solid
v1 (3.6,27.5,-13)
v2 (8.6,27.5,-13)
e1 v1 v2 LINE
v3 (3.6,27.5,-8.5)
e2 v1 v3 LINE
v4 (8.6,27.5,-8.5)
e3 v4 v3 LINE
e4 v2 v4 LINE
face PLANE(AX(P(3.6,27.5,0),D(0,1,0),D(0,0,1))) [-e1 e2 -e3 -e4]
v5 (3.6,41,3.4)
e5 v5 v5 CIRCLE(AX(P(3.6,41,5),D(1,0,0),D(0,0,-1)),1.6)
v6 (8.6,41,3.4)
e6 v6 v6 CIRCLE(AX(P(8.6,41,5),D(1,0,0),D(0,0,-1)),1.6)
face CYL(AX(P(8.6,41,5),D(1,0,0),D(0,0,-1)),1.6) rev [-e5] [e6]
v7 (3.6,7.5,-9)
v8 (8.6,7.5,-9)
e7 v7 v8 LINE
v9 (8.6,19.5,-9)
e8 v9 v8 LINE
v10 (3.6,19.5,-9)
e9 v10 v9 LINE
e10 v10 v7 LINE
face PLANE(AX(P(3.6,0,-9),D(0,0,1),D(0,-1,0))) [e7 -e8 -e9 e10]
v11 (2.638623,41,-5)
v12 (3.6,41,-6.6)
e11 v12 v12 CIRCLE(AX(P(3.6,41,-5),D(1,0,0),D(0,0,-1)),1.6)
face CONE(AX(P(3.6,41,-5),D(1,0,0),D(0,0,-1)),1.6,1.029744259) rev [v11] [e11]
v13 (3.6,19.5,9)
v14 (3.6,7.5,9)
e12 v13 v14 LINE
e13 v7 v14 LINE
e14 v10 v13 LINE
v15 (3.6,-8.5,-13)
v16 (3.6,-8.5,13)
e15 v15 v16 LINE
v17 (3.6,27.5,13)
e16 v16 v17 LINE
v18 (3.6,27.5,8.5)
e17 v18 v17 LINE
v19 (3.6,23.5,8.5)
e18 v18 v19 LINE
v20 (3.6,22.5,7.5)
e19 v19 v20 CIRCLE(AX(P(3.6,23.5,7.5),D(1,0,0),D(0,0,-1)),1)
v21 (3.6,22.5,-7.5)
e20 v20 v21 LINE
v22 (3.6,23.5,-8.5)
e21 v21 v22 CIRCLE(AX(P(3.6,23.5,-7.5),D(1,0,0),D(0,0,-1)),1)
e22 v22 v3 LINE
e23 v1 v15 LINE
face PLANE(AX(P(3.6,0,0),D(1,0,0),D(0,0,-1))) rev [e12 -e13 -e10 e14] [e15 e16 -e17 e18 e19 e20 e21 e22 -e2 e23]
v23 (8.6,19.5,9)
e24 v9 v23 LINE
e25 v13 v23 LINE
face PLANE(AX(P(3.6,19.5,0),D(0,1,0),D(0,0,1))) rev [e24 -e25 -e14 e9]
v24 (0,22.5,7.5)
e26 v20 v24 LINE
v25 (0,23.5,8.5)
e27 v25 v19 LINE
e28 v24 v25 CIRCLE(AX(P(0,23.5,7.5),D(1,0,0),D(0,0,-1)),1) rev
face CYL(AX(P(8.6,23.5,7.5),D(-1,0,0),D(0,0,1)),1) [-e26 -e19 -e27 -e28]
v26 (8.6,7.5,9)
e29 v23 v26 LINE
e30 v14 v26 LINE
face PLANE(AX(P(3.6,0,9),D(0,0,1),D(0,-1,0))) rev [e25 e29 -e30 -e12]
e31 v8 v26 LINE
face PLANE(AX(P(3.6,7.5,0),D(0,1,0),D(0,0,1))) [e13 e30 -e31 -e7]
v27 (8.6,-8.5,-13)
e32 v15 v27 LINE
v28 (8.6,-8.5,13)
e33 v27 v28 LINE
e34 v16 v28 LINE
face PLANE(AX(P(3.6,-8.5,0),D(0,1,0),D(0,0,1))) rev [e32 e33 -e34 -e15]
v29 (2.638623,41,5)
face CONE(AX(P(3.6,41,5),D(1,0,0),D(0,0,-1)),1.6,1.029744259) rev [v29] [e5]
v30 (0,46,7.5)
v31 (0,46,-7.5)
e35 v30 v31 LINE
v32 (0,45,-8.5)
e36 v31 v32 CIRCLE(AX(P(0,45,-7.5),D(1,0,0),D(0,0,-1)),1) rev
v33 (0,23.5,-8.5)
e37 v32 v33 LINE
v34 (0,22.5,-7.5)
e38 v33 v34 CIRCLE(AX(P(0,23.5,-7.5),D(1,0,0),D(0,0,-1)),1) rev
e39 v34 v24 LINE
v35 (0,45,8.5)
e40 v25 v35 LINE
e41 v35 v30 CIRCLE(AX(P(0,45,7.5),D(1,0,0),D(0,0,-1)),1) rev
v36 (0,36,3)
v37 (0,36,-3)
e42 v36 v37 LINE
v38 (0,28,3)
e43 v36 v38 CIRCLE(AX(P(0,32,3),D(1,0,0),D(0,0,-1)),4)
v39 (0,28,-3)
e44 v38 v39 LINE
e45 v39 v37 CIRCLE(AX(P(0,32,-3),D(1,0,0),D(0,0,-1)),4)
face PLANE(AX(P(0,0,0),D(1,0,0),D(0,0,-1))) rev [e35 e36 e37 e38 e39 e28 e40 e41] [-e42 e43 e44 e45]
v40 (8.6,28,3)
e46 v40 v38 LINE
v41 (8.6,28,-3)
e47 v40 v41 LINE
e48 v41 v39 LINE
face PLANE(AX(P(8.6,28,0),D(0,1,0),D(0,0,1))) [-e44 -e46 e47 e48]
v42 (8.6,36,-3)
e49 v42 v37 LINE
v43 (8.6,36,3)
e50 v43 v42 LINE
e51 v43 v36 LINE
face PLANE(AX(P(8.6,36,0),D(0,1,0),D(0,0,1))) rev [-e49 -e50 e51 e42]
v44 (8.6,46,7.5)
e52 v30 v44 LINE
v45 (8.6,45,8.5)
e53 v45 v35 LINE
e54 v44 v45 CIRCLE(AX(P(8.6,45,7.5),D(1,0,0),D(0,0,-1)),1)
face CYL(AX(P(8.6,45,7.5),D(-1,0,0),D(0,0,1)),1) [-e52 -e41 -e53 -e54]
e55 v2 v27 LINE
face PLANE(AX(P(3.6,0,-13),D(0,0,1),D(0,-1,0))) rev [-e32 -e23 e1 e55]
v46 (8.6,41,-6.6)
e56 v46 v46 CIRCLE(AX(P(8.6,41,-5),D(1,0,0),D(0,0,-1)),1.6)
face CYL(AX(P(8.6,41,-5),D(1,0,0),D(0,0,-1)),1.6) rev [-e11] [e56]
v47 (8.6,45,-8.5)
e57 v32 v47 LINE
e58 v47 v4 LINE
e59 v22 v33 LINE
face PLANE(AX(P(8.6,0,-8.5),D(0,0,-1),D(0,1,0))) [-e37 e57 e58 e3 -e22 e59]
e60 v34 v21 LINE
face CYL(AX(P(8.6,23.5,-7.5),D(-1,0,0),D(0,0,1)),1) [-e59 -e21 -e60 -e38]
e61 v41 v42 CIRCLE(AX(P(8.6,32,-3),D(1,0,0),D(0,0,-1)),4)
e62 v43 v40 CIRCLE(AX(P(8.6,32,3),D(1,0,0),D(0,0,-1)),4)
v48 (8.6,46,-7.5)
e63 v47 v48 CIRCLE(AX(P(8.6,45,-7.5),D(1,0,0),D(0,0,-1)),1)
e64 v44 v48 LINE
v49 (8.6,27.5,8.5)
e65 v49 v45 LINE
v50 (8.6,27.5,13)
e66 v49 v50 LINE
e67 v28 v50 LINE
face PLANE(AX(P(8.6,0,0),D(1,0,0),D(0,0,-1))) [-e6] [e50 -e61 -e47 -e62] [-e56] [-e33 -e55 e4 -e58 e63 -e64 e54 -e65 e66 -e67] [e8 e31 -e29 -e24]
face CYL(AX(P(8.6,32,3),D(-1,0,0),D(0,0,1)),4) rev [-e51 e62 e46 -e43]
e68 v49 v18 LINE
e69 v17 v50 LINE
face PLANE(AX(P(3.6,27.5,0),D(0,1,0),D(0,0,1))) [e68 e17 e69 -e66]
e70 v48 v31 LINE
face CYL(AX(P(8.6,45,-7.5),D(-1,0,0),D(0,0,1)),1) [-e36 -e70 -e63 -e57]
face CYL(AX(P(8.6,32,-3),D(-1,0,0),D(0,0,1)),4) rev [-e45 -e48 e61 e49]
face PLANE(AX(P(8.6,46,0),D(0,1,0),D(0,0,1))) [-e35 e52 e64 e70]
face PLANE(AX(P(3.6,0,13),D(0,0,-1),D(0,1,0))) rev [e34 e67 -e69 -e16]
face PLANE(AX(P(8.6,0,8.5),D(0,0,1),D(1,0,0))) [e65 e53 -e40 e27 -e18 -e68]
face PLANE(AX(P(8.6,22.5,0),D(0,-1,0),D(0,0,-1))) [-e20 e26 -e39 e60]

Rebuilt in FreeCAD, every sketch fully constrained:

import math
import FreeCAD as App
import Part
import Sketcher
from FreeCAD import Vector


def edges_at(feature, points):
    """Names of the edges that pass closest to the given points."""
    edges = feature.Shape.Edges
    near = lambda p: min(range(len(edges)), key=lambda i: edges[i].distToShape(Part.Vertex(*p))[0])
    return sorted({f"Edge{near(p) + 1}" for p in points})


def add_polygon(sketch, points):
    """Adds a closed chain of lines whose ends are joined by coincident constraints."""
    first, n = sketch.GeometryCount, len(points)
    for a, b in zip(points, points[1:] + points[:1]):
        sketch.addGeometry(Part.LineSegment(App.Vector(*a, 0), App.Vector(*b, 0)), False)
    for i in range(n):
        sketch.addConstraint(Sketcher.Constraint("Coincident", first + i, 2, first + (i + 1) % n, 1))

doc = App.newDocument("Part")
body = doc.addObject("PartDesign::Body", "Body")

# Sketch on YZ plane
sketch1 = doc.addObject("Sketcher::SketchObject", "Sketch")
body.addObject(sketch1)
sketch1.AttachmentSupport = (doc.YZ_Plane, [""])
sketch1.MapMode = "FlatFace"
sketch1.AttachmentOffset = App.Placement(Vector(0, 0, 3.6), App.Rotation())
add_polygon(sketch1, [(-8, -13), (28, -13), (28, 13), (-8, 13)])  # lines 0-3
add_polygon(sketch1, [(8, 9), (20, 9), (20, -9), (8, -9)])  # lines 4-7
sketch1.addConstraint([
    Sketcher.Constraint("Horizontal", 0),
    Sketcher.Constraint("Vertical", 1),
    Sketcher.Constraint("Horizontal", 2),
    Sketcher.Constraint("Vertical", 3),
    Sketcher.Constraint("Horizontal", 4),
    Sketcher.Constraint("Vertical", 5),
    Sketcher.Constraint("Horizontal", 6),
    Sketcher.Constraint("Vertical", 7),
    Sketcher.Constraint("DistanceX", 0, 1, 0, 2, 36.0),
    Sketcher.Constraint("DistanceX", 4, 1, 4, 2, 12.0),
    Sketcher.Constraint("DistanceY", 1, 1, 1, 2, 26.0),
    Sketcher.Constraint("DistanceY", 5, 2, 5, 1, 18.0),
    Sketcher.Constraint("DistanceY", 0, 2, -1, 1, 13.0),
    Sketcher.Constraint("DistanceY", -1, 1, 4, 2, 9.0),
    Sketcher.Constraint("DistanceX", 4, 2, 1, 2, 8.0),
    Sketcher.Constraint("DistanceX", -1, 1, 0, 2, 27.5),
])
pad1 = doc.addObject("PartDesign::Pad", "Pad")
body.addObject(pad1)
pad1.Profile = sketch1
pad1.Length = 5

# Sketch on YZ plane
sketch2 = doc.addObject("Sketcher::SketchObject", "Sketch001")
body.addObject(sketch2)
sketch2.AttachmentSupport = (doc.YZ_Plane, [""])
sketch2.MapMode = "FlatFace"
add_polygon(sketch2, [(28, 8), (22, 8), (22, -8), (28, -8)])  # lines 0-3
sketch2.addConstraint([
    Sketcher.Constraint("Horizontal", 0),
    Sketcher.Constraint("Vertical", 1),
    Sketcher.Constraint("Horizontal", 2),
    Sketcher.Constraint("Vertical", 3),
    Sketcher.Constraint("DistanceX", 0, 2, 0, 1, 5.0),
    Sketcher.Constraint("DistanceY", 1, 2, 1, 1, 17.0),
    Sketcher.Constraint("DistanceX", -1, 1, 0, 2, 22.5),
    Sketcher.Constraint("DistanceY", -1, 1, 0, 2, 8.5),
])
pad2 = doc.addObject("PartDesign::Pad", "Pad001")
body.addObject(pad2)
pad2.Profile = sketch2
pad2.Length = 8.6

# Sketch on YZ plane
sketch3 = doc.addObject("Sketcher::SketchObject", "Sketch002")
body.addObject(sketch3)
sketch3.AttachmentSupport = (doc.YZ_Plane, [""])
sketch3.MapMode = "FlatFace"
add_polygon(sketch3, [(46, 8.5), (27.5, 8.5), (27.5, -8.5), (46, -8.5)])  # lines 0-3
sketch3.addGeometry(Part.ArcOfCircle(Part.Circle(Vector(32, -3, 0), Vector(0, 0, 1), 4), math.radians(180), math.radians(360)), False)  # 4
sketch3.addGeometry(Part.LineSegment(Vector(28, -3, 0), Vector(28, 3, 0)), False)  # 5
sketch3.addGeometry(Part.ArcOfCircle(Part.Circle(Vector(32, 3, 0), Vector(0, 0, 1), 4), math.radians(0), math.radians(180)), False)  # 6
sketch3.addGeometry(Part.LineSegment(Vector(36, 3, 0), Vector(36, -3, 0)), False)  # 7
sketch3.addConstraint([
    Sketcher.Constraint("Tangent", 4, 1, 5, 1),
    Sketcher.Constraint("Tangent", 5, 2, 6, 2),
    Sketcher.Constraint("Tangent", 6, 1, 7, 1),
    Sketcher.Constraint("Tangent", 7, 2, 4, 2),
    Sketcher.Constraint("Horizontal", 0),
    Sketcher.Constraint("Vertical", 1),
    Sketcher.Constraint("Horizontal", 2),
    Sketcher.Constraint("Vertical", 3),
    Sketcher.Constraint("Vertical", 5),
    Sketcher.Constraint("Vertical", 7),
    Sketcher.Constraint("Radius", 4, 4.0),
    Sketcher.Constraint("DistanceY", 1, 2, 1, 1, 17.0),
    Sketcher.Constraint("DistanceY", 5, 1, 5, 2, 6.0),
    Sketcher.Constraint("DistanceX", 0, 2, 0, 1, 18.5),
    Sketcher.Constraint("DistanceX", -1, 1, 4, 3, 32.0),
    Sketcher.Constraint("DistanceY", 4, 3, -1, 1, 3.0),
    Sketcher.Constraint("DistanceX", -1, 1, 2, 2, 46.0),
    Sketcher.Constraint("DistanceY", -1, 1, 0, 2, 8.5),
])
pad3 = doc.addObject("PartDesign::Pad", "Pad002")
body.addObject(pad3)
pad3.Profile = sketch3
pad3.Length = 8.6

# Sketch on YZ plane
sketch4 = doc.addObject("Sketcher::SketchObject", "Sketch003")
body.addObject(sketch4)
sketch4.AttachmentSupport = (doc.YZ_Plane, [""])
sketch4.MapMode = "FlatFace"
sketch4.AttachmentOffset = App.Placement(Vector(0, 0, 8.6), App.Rotation())
sketch4.addGeometry([
    Part.Circle(Vector(41, 5, 0), Vector(0, 0, 1), 1.6),
    Part.Circle(Vector(41, -5, 0), Vector(0, 0, 1), 1.6),
], False)
sketch4.addConstraint([
    Sketcher.Constraint("Equal", 0, 1),
    Sketcher.Constraint("Symmetric", 0, 3, 1, 3, -1),
    Sketcher.Constraint("Diameter", 0, 3.2),
    Sketcher.Constraint("DistanceX", -1, 1, 0, 3, 41.0),
    Sketcher.Constraint("DistanceY", -1, 1, 0, 3, 5.0),
])
doc.recompute()
hole = doc.addObject("PartDesign::Hole", "Hole")
body.addObject(hole)
hole.Profile = sketch4
hole.ThreadType = "None"
hole.Diameter = 3.2
hole.DepthType = "Dimension"
hole.Depth = 5
hole.DrillPoint = "Angled"
hole.DrillPointAngle = 118
doc.recompute()

fillet = doc.addObject("PartDesign::Fillet", "Fillet")
body.addObject(fillet)
fillet.Base = (hole, edges_at(hole, [
    (1.8, 22.5, 8.5),
    (1.8, 22.5, -8.5),
    (4.3, 46, -8.5),
    (4.3, 46, 8.5),
]))
fillet.Radius = 1

doc.recompute()
